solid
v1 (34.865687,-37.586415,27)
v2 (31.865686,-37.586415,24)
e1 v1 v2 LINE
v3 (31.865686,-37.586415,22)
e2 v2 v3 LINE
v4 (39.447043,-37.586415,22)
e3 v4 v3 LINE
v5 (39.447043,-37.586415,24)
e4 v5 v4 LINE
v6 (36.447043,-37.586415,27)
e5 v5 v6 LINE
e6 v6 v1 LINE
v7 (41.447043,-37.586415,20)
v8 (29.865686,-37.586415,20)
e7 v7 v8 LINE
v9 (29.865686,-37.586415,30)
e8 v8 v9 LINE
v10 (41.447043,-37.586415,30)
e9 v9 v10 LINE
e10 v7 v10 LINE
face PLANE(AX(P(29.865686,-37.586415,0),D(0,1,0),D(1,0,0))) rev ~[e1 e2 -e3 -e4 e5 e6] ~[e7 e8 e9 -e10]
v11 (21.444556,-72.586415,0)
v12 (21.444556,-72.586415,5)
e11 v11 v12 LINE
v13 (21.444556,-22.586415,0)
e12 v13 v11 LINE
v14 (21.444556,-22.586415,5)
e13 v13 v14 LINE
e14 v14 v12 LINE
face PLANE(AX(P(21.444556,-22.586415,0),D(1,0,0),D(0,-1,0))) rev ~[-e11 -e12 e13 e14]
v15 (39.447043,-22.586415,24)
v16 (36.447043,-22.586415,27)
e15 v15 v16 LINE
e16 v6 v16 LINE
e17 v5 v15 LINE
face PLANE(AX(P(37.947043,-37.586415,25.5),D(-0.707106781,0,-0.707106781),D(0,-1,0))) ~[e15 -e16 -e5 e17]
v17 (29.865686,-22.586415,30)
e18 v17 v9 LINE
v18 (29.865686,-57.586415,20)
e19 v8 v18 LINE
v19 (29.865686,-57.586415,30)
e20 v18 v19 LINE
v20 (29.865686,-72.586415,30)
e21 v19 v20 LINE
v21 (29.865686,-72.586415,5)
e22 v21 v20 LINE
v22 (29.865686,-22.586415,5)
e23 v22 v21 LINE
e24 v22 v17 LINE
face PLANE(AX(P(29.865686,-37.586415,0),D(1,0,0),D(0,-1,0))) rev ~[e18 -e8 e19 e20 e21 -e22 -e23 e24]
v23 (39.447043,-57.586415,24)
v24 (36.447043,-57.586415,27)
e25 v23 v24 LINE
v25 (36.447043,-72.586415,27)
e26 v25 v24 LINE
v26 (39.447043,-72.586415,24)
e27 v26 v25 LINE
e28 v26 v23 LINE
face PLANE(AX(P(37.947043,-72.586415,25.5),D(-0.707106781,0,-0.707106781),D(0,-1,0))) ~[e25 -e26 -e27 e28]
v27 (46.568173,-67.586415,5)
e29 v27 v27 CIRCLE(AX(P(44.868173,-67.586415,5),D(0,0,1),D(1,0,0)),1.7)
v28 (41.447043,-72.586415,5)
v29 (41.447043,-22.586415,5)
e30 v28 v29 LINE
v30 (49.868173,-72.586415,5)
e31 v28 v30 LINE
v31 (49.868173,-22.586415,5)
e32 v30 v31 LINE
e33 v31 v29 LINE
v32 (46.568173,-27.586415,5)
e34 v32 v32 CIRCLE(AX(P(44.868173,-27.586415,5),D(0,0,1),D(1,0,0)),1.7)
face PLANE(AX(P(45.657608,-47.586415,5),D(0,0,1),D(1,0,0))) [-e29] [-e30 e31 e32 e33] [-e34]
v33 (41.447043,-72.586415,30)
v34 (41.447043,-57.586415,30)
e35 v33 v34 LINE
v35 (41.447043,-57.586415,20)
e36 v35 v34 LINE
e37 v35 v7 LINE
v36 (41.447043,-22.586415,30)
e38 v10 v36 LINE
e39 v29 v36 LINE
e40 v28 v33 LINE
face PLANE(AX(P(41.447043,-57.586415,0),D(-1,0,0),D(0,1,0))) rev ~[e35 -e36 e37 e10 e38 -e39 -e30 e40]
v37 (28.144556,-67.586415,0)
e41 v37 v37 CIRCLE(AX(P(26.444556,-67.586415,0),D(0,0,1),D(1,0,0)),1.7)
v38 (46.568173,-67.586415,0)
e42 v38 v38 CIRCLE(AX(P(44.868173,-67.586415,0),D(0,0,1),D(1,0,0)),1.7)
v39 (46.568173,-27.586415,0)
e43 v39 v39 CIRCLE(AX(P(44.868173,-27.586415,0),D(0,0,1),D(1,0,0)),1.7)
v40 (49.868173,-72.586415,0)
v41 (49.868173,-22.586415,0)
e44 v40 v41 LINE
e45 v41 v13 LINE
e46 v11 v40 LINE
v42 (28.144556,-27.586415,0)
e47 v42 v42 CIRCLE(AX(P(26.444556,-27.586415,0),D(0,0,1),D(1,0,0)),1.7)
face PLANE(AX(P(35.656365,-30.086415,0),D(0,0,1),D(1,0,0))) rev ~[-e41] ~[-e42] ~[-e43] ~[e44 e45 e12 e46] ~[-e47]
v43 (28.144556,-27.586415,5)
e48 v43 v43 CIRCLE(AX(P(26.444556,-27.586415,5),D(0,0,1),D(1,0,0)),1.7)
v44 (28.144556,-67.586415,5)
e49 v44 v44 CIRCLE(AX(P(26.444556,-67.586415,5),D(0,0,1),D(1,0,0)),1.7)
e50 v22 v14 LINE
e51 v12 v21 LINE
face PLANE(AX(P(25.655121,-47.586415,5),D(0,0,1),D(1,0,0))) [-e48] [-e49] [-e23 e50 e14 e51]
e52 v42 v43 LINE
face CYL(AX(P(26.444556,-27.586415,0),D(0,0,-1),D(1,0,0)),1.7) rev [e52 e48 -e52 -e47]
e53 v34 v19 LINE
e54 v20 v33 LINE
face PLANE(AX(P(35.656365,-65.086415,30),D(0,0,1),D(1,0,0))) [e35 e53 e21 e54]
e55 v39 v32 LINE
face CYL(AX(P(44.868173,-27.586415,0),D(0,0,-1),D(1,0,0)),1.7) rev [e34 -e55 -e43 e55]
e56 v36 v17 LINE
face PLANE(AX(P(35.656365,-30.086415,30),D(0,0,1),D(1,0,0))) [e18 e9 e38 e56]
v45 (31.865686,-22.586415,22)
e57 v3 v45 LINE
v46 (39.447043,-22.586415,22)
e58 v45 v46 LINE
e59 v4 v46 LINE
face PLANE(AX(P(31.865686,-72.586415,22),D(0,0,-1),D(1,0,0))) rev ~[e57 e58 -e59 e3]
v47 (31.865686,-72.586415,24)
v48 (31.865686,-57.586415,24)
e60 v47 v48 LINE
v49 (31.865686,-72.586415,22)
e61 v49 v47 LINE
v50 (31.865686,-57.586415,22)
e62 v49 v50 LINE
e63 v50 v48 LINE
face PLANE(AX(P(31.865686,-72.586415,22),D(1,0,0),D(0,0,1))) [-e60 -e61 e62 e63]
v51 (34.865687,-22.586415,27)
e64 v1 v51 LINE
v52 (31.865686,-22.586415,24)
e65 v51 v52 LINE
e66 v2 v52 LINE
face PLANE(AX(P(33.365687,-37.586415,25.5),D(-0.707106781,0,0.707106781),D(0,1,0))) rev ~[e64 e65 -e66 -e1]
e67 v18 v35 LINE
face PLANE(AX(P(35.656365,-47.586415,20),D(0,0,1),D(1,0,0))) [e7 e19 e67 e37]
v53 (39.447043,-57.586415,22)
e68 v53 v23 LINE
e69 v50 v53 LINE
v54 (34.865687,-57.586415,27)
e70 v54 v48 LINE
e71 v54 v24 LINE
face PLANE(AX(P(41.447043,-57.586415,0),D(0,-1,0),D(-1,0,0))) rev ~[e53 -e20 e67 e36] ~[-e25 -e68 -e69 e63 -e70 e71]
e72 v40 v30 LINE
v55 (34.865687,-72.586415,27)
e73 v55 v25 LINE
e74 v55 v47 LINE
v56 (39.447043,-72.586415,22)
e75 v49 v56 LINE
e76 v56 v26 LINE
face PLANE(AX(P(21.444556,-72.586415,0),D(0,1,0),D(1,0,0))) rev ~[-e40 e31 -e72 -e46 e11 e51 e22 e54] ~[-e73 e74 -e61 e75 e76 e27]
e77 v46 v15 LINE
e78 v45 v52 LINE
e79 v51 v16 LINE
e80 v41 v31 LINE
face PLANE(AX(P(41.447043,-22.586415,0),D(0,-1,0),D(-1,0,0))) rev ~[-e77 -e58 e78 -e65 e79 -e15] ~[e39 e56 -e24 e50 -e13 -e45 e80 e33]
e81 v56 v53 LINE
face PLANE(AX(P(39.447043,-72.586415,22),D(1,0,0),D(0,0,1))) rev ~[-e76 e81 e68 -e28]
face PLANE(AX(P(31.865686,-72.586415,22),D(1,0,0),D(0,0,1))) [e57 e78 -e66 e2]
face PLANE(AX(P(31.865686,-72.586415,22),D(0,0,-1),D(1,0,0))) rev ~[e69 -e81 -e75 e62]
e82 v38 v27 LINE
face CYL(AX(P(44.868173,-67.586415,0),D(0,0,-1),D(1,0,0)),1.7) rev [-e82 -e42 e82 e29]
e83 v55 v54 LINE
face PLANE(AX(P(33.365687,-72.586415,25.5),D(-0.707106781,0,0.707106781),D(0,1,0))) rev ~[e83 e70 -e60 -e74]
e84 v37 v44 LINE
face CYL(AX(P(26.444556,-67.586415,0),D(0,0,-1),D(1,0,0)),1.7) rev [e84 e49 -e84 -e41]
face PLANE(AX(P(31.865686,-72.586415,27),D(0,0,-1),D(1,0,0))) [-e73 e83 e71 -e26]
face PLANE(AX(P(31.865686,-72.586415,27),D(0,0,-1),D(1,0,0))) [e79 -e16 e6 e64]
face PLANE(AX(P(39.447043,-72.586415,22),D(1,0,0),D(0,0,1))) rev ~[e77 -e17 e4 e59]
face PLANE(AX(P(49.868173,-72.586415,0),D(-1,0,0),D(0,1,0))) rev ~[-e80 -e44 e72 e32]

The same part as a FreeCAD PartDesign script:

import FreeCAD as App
import Part
import Sketcher
Q = App.Units.Quantity


def edges_at(feature, points):
    """Names of the edges that pass closest to the given points."""
    edges = feature.Shape.Edges
    near = lambda p: min(range(len(edges)), key=lambda i: edges[i].distToShape(Part.Vertex(*p))[0])
    return sorted({f"Edge{near(p) + 1}" for p in points})


def add_polygon(sketch, points):
    """Adds a closed chain of lines whose ends are joined by coincident constraints."""
    first, n = sketch.GeometryCount, len(points)
    for a, b in zip(points, points[1:] + points[:1]):
        sketch.addGeometry(Part.LineSegment(App.Vector(*a, 0), App.Vector(*b, 0)), False)
    for i in range(n):
        sketch.addConstraint(Sketcher.Constraint("Coincident", first + i, 2, first + (i + 1) % n, 1))

doc = App.newDocument("Part")
body = doc.addObject("PartDesign::Body", "Body")
body.AllowCompound = True

# Sketch on XY plane
sketch1 = body.newObject("Sketcher::SketchObject", "Sketch")
sketch1.AttachmentSupport = (doc.getObject("XY_Plane"), [""])
sketch1.MapMode = "FlatFace"
add_polygon(sketch1, [(29.865686, -22.586415), (21.444556, -22.586415), (21.444556, -72.586415), (29.865686, -72.586415)])  # lines 0-3
sketch1.addGeometry(Part.Circle(App.Vector(26.444556, -67.586415, 0), App.Vector(0, 0, 1), 1.7), False)  # 4
sketch1.addGeometry(Part.Circle(App.Vector(26.444556, -27.586415, 0), App.Vector(0, 0, 1), 1.7), False)  # 5
add_polygon(sketch1, [(49.868173, -22.586415), (41.447043, -22.586415), (41.447043, -72.586415), (49.868173, -72.586415)])  # lines 6-9
sketch1.addGeometry(Part.Circle(App.Vector(44.868173, -67.586415, 0), App.Vector(0, 0, 1), 1.7), False)  # 10
sketch1.addGeometry(Part.Circle(App.Vector(44.868173, -27.586415, 0), App.Vector(0, 0, 1), 1.7), False)  # 11
sketch1.addConstraint([
    Sketcher.Constraint("Horizontal", 0),
    Sketcher.Constraint("Vertical", 1),
    Sketcher.Constraint("Horizontal", 2),
    Sketcher.Constraint("Vertical", 3),
    Sketcher.Constraint("Horizontal", 6),
    Sketcher.Constraint("Vertical", 7),
    Sketcher.Constraint("Horizontal", 8),
    Sketcher.Constraint("Vertical", 9),
    Sketcher.Constraint("Equal", 4, 5),
    Sketcher.Constraint("Equal", 5, 10),
    Sketcher.Constraint("Equal", 10, 11),
    Sketcher.Constraint("Horizontal", 4, 3, 10, 3),
    Sketcher.Constraint("Horizontal", 5, 3, 11, 3),
    Sketcher.Constraint("Horizontal", 3, 2, 6, 2),
    Sketcher.Constraint("Horizontal", 2, 2, 7, 2),
    Sketcher.Constraint("Vertical", 4, 3, 5, 3),
    Sketcher.Constraint("Vertical", 10, 3, 11, 3),
    Sketcher.Constraint("Equal", 2, 6),
    Sketcher.Constraint("Diameter", 4, Q("3.4 mm")),
    Sketcher.Constraint("DistanceY", 1, 2, 1, 1, Q("50 mm")),
    Sketcher.Constraint("DistanceY", 4, 3, 5, 3, Q("40 mm")),
    Sketcher.Constraint("DistanceX", 0, 2, 5, 3, Q("5 mm")),
    Sketcher.Constraint("DistanceY", 5, 3, 0, 2, Q("5 mm")),
    Sketcher.Constraint("DistanceX", 10, 3, 8, 2, Q("5 mm")),
    Sketcher.Constraint("DistanceX", 0, 2, 0, 1, Q("8.42113 mm")),
    Sketcher.Constraint("DistanceX", -1, 1, 4, 3, Q("26.444556 mm")),
    Sketcher.Constraint("DistanceY", 4, 3, -1, 1, Q("67.586415 mm")),
    Sketcher.Constraint("DistanceX", -1, 1, 10, 3, Q("44.868173 mm")),
])
pad1 = body.newObject("PartDesign::Pad", "Pad")
pad1.Profile = sketch1
pad1.Length = 5

# Sketch on XY plane
sketch2 = body.newObject("Sketcher::SketchObject", "Sketch001")
sketch2.AttachmentSupport = (doc.getObject("XY_Plane"), [""])
sketch2.MapMode = "FlatFace"
add_polygon(sketch2, [(29.865686, -22.586415), (29.865686, -37.586415), (41.447043, -37.586415), (41.447043, -22.586415)])  # lines 0-3
add_polygon(sketch2, [(29.865686, -57.586415), (29.865686, -72.586415), (41.447043, -72.586415), (41.447043, -57.586415)])  # lines 4-7
sketch2.addConstraint([
    Sketcher.Constraint("Vertical", 0),
    Sketcher.Constraint("Horizontal", 1),
    Sketcher.Constraint("Vertical", 2),
    Sketcher.Constraint("Horizontal", 3),
    Sketcher.Constraint("Vertical", 4),
    Sketcher.Constraint("Horizontal", 5),
    Sketcher.Constraint("Vertical", 6),
    Sketcher.Constraint("Horizontal", 7),
    Sketcher.Constraint("Vertical", 3, 2, 4, 2),
    Sketcher.Constraint("Vertical", 2, 2, 5, 2),
    Sketcher.Constraint("Equal", 2, 4),
    Sketcher.Constraint("DistanceY", 0, 2, 0, 1, Q("15 mm")),
    Sketcher.Constraint("DistanceY", 4, 2, 0, 2, Q("35 mm")),
    Sketcher.Constraint("DistanceX", 1, 1, 1, 2, Q("11.581357 mm")),
    Sketcher.Constraint("DistanceX", -1, 1, 0, 2, Q("29.865686 mm")),
    Sketcher.Constraint("DistanceY", 0, 2, -1, 1, Q("37.586415 mm")),
])
pad2 = body.newObject("PartDesign::Pad", "Pad001")
pad2.Profile = sketch2
pad2.Length = 30

# Sketch on XY plane
sketch3 = body.newObject("Sketcher::SketchObject", "Sketch002")
sketch3.AttachmentSupport = (doc.getObject("XY_Plane"), [""])
sketch3.MapMode = "FlatFace"
add_polygon(sketch3, [(29.865686, -37.586415), (29.865686, -57.586415), (41.447043, -57.586415), (41.447043, -37.586415)])  # lines 0-3
sketch3.addConstraint([
    Sketcher.Constraint("Vertical", 0),
    Sketcher.Constraint("Horizontal", 1),
    Sketcher.Constraint("Vertical", 2),
    Sketcher.Constraint("Horizontal", 3),
    Sketcher.Constraint("DistanceY", 0, 2, 0, 1, Q("20 mm")),
    Sketcher.Constraint("DistanceX", 1, 1, 1, 2, Q("11.581357 mm")),
    Sketcher.Constraint("DistanceX", -1, 1, 0, 2, Q("29.865686 mm")),
    Sketcher.Constraint("DistanceY", 0, 2, -1, 1, Q("57.586415 mm")),
])
pad3 = body.newObject("PartDesign::Pad", "Pad002")
pad3.Profile = sketch3
pad3.Length = 20

# Sketch on XZ plane
sketch4 = body.newObject("Sketcher::SketchObject", "Sketch003")
sketch4.AttachmentSupport = (doc.getObject("XZ_Plane"), [""])
sketch4.MapMode = "FlatFace"
sketch4.AttachmentOffset = App.Placement(App.Vector(0, 0, 72.586415), App.Rotation())
add_polygon(sketch4, [(31.865686, 27), (31.865686, 22), (39.447043, 22), (39.447043, 27)])  # lines 0-3
sketch4.addConstraint([
    Sketcher.Constraint("Vertical", 0),
    Sketcher.Constraint("Horizontal", 1),
    Sketcher.Constraint("Vertical", 2),
    Sketcher.Constraint("Horizontal", 3),
    Sketcher.Constraint("DistanceY", 0, 2, 0, 1, Q("5 mm")),
    Sketcher.Constraint("DistanceY", -1, 1, 0, 2, Q("22 mm")),
    Sketcher.Constraint("DistanceX", 1, 1, 1, 2, Q("7.581357 mm")),
    Sketcher.Constraint("DistanceX", -1, 1, 0, 2, Q("31.865686 mm")),
])
pocket1 = body.newObject("PartDesign::Pocket", "Pocket")
pocket1.Profile = sketch4
pocket1.Type = "ThroughAll"
doc.recompute()

chamfer = body.newObject("PartDesign::Chamfer", "Chamfer")
chamfer.Base = (pocket1, edges_at(pocket1, [
    (31.866, -30.086, 27),
    (31.866, -65.086, 27),
    (39.447, -30.086, 27),
    (39.447, -65.086, 27),
]))
chamfer.Size = 3

doc.recompute()
